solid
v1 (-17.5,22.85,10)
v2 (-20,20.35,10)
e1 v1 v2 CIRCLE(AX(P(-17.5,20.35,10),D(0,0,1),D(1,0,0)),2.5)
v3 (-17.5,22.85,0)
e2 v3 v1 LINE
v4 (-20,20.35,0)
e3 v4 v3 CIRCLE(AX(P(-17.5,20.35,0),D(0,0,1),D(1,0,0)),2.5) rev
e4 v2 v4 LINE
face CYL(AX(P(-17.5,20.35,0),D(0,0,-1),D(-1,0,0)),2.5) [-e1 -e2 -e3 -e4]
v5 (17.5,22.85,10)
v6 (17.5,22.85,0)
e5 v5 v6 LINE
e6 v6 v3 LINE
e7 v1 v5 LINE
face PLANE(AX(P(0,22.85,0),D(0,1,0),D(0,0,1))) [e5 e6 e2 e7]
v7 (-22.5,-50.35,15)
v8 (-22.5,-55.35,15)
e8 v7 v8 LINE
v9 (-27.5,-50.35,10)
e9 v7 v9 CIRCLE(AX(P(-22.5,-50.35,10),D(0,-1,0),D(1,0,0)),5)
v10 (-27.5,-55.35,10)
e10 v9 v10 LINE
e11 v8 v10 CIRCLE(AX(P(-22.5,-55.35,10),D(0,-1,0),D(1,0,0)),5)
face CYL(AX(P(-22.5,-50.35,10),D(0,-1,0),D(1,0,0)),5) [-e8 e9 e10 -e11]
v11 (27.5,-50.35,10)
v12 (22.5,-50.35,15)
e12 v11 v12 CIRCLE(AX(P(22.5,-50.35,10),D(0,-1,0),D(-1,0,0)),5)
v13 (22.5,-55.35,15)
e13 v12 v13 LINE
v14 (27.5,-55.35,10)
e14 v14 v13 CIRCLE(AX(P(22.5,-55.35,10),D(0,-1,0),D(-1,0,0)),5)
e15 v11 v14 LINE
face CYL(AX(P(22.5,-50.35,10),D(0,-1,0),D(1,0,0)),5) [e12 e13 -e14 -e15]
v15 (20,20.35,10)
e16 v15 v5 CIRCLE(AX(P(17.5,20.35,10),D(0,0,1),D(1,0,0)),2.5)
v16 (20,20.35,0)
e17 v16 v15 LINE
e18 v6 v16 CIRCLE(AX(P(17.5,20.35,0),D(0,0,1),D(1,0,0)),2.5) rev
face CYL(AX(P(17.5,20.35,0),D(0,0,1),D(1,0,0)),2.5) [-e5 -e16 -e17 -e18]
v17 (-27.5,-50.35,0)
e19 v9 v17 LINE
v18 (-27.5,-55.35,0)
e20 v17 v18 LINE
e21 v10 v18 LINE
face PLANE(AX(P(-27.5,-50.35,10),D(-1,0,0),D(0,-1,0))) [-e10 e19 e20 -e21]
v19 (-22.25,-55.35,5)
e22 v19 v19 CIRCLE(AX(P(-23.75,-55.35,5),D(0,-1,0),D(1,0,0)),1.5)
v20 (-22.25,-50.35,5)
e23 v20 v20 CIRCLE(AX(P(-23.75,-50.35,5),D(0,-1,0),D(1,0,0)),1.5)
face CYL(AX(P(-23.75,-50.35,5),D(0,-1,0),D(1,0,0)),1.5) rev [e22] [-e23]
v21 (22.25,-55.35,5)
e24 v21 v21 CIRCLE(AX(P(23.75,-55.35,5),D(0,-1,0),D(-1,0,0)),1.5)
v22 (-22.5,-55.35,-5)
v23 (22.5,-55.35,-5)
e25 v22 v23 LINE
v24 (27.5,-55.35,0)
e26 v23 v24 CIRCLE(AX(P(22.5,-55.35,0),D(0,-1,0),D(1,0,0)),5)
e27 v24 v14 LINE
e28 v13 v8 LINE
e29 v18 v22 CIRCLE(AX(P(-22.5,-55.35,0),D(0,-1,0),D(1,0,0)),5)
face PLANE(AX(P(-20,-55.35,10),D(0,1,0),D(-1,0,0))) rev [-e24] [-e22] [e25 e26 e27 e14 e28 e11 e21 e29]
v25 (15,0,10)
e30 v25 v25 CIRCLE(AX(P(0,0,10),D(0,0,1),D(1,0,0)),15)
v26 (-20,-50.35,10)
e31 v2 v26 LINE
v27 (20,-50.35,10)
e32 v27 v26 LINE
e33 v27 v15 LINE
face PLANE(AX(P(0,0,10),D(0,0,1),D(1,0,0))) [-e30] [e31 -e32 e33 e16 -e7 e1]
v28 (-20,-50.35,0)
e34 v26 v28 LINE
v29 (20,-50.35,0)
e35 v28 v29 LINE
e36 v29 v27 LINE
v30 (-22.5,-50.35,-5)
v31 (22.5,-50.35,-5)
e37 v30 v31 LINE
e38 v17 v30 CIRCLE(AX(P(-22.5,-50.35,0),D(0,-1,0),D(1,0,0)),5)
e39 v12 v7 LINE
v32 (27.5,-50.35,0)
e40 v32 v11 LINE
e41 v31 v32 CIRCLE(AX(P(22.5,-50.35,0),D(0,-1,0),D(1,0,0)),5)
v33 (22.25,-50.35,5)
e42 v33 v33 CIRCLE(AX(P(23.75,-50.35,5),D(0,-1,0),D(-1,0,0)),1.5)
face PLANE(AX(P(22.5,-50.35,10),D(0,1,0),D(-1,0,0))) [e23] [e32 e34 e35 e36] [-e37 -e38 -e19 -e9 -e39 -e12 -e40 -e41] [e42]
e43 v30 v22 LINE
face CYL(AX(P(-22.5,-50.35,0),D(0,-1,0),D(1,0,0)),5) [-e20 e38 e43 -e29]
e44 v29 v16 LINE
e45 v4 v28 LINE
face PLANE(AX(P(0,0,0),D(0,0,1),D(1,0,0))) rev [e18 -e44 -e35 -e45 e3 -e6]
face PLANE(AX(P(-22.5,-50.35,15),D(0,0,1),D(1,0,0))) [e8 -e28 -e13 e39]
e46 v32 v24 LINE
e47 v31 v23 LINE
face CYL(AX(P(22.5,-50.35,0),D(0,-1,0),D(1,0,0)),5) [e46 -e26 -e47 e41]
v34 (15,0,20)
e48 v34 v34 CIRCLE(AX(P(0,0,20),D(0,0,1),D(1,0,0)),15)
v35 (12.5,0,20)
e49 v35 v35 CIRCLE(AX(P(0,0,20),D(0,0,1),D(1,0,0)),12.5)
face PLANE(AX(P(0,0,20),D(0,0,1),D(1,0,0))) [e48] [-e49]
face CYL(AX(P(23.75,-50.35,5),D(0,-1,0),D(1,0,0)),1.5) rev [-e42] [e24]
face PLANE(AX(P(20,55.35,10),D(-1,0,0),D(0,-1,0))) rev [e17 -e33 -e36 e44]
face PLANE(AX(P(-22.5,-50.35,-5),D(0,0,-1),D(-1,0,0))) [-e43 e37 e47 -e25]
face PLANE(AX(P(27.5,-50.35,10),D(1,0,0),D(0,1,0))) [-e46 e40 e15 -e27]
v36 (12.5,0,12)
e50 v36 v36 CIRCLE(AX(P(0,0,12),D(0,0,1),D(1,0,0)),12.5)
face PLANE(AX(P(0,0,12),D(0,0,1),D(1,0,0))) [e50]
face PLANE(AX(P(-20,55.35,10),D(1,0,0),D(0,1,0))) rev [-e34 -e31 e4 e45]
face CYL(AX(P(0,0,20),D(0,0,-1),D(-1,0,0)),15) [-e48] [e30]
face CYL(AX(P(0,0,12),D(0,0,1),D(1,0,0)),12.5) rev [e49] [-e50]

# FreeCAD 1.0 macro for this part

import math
import FreeCAD as App
import Part
import Sketcher

V = App.Vector
Q = App.Units.Quantity


def edges_at(feature, points):
    """Names of the edges that pass closest to the given points."""
    edges = feature.Shape.Edges
    near = lambda p: min(range(len(edges)), key=lambda i: edges[i].distToShape(Part.Vertex(*p))[0])
    return sorted({f"Edge{near(p) + 1}" for p in points})


def add_polygon(sketch, points):
    """Adds a closed chain of lines whose ends are joined by coincident constraints."""
    first, n = sketch.GeometryCount, len(points)
    for a, b in zip(points, points[1:] + points[:1]):
        sketch.addGeometry(Part.LineSegment(App.Vector(*a, 0), App.Vector(*b, 0)), False)
    for i in range(n):
        sketch.addConstraint(Sketcher.Constraint("Coincident", first + i, 2, first + (i + 1) % n, 1))

doc = App.newDocument("Part")
body = doc.addObject("PartDesign::Body", "Body")

# Sketch on XY plane
sketch1 = body.newObject("Sketcher::SketchObject", "Sketch")
sketch1.AttachmentSupport = (doc.getObject("XY_Plane"), [""])
sketch1.MapMode = "FlatFace"
add_polygon(sketch1, [(-20, 55), (-20, -55), (20, -55), (20, 55)])  # lines 0-3
sketch1.addConstraint([
    Sketcher.Constraint("Vertical", 0),
    Sketcher.Constraint("Horizontal", 1),
    Sketcher.Constraint("Vertical", 2),
    Sketcher.Constraint("Horizontal", 3),
    Sketcher.Constraint("Symmetric", 0, 2, 2, 2, -1, 1),
    Sketcher.Constraint("DistanceX", 1, 1, 1, 2, Q("40 mm")),
    Sketcher.Constraint("DistanceY", 0, 2, 0, 1, Q("110.7 mm")),
])
pad1 = body.newObject("PartDesign::Pad", "Pad")
pad1.Profile = sketch1
pad1.Length = 10

# Sketch on XY plane
sketch2 = body.newObject("Sketcher::SketchObject", "Sketch001")
sketch2.AttachmentSupport = (doc.getObject("XY_Plane"), [""])
sketch2.MapMode = "FlatFace"
sketch2.AttachmentOffset = App.Placement(V(0, 0, 10), App.Rotation())
sketch2.addGeometry(Part.Circle(V(0, 0, 0), V(0, 0, 1), 15), False)
sketch2.addConstraint([
    Sketcher.Constraint("Coincident", 0, 3, -1, 1),
    Sketcher.Constraint("Diameter", 0, Q("30 mm")),
])
pad2 = body.newObject("PartDesign::Pad", "Pad001")
pad2.Profile = sketch2
pad2.Length = 10

# Sketch on XY plane
sketch3 = body.newObject("Sketcher::SketchObject", "Sketch002")
sketch3.AttachmentSupport = (doc.getObject("XY_Plane"), [""])
sketch3.MapMode = "FlatFace"
sketch3.AttachmentOffset = App.Placement(V(0, 0, 20), App.Rotation())
sketch3.addGeometry(Part.Circle(V(0, 0, 0), V(0, 0, 1), 12), False)
sketch3.addConstraint([
    Sketcher.Constraint("Coincident", 0, 3, -1, 1),
    Sketcher.Constraint("Diameter", 0, Q("25 mm")),
])
pocket1 = body.newObject("PartDesign::Pocket", "Pocket")
pocket1.Profile = sketch3
pocket1.Length = 8

# Sketch on XZ plane
sketch4 = body.newObject("Sketcher::SketchObject", "Sketch003")
sketch4.AttachmentSupport = (doc.getObject("XZ_Plane"), [""])
sketch4.MapMode = "FlatFace"
sketch4.AttachmentOffset = App.Placement(V(0, 0, -55.35), App.Rotation())
add_polygon(sketch4, [(-20, 0), (-20, 10), (20, 10), (20, 0)])  # lines 0-3
sketch4.addConstraint([
    Sketcher.Constraint("Vertical", 0),
    Sketcher.Constraint("Horizontal", 1),
    Sketcher.Constraint("Vertical", 2),
    Sketcher.Constraint("Horizontal", 3),
    Sketcher.Constraint("Symmetric", 2, 2, 3, 2, -1, 1),
    Sketcher.Constraint("DistanceX", 1, 1, 1, 2, Q("40 mm")),
    Sketcher.Constraint("DistanceY", 0, 1, 0, 2, Q("10 mm")),
])
pocket2 = body.newObject("PartDesign::Pocket", "Pocket001")
pocket2.Profile = sketch4
pocket2.Length = 32.5
pocket2.Reversed = True
doc.recompute()

fillet = body.newObject("PartDesign::Fillet", "Fillet")
fillet.Base = (pocket2, edges_at(pocket2, [(-20, 22.85, 5), (20, 22.85, 5)]))
fillet.Radius = 2.5

# Sketch on XZ plane
sketch5 = body.newObject("Sketcher::SketchObject", "Sketch004")
sketch5.AttachmentSupport = (doc.getObject("XZ_Plane"), [""])
sketch5.MapMode = "FlatFace"
sketch5.AttachmentOffset = App.Placement(V(0, 0, 55.35), App.Rotation())
sketch5.addGeometry(Part.LineSegment(V(22.5, 15, 0), V(-22.5, 15, 0)), False)  # 0
sketch5.addGeometry(Part.ArcOfCircle(Part.Circle(V(-22.5, 10, 0), V(0, 0, 1), 5), math.radians(90), math.radians(180)), False)  # 1
sketch5.addGeometry(Part.LineSegment(V(-27.5, 10, 0), V(-27.5, 0, 0)), False)  # 2
sketch5.addGeometry(Part.ArcOfCircle(Part.Circle(V(-22.5, 0, 0), V(0, 0, 1), 5), math.radians(180), math.radians(270)), False)  # 3
sketch5.addGeometry(Part.LineSegment(V(-22.5, -5, 0), V(22.5, -5, 0)), False)  # 4
sketch5.addGeometry(Part.ArcOfCircle(Part.Circle(V(22.5, 0, 0), V(0, 0, 1), 5), math.radians(-90), math.radians(0)), False)  # 5
sketch5.addGeometry(Part.LineSegment(V(27.5, 0, 0), V(27.5, 10, 0)), False)  # 6
sketch5.addGeometry(Part.ArcOfCircle(Part.Circle(V(22.5, 10, 0), V(0, 0, 1), 5), math.radians(0), math.radians(90)), False)  # 7
sketch5.addGeometry(Part.Circle(V(23.8, 5, 0), V(0, 0, 1), 1.5), False)  # 8
add_polygon(sketch5, [(-20, 0), (-20, 10), (20, 10), (20, 0)])  # lines 9-12
sketch5.addGeometry(Part.Circle(V(-23.8, 5, 0), V(0, 0, 1), 1.5), False)  # 13
sketch5.addConstraint([
    Sketcher.Constraint("Tangent", 0, 2, 1, 1),
    Sketcher.Constraint("Tangent", 1, 2, 2, 1),
    Sketcher.Constraint("Tangent", 2, 2, 3, 1),
    Sketcher.Constraint("Tangent", 3, 2, 4, 1),
    Sketcher.Constraint("Tangent", 4, 2, 5, 1),
    Sketcher.Constraint("Tangent", 5, 2, 6, 1),
    Sketcher.Constraint("Tangent", 6, 2, 7, 1),
    Sketcher.Constraint("Tangent", 7, 2, 0, 1),
    Sketcher.Constraint("Horizontal", 0),
    Sketcher.Constraint("Vertical", 2),
    Sketcher.Constraint("Horizontal", 4),
    Sketcher.Constraint("Vertical", 6),
    Sketcher.Constraint("Vertical", 9),
    Sketcher.Constraint("Horizontal", 10),
    Sketcher.Constraint("Vertical", 11),
    Sketcher.Constraint("Horizontal", 12),
    Sketcher.Constraint("Equal", 1, 3),
    Sketcher.Constraint("Equal", 3, 5),
    Sketcher.Constraint("Equal", 5, 7),
    Sketcher.Constraint("Equal", 8, 13),
    Sketcher.Constraint("Symmetric", 3, 3, 5, 3, -1, 1),
    Sketcher.Constraint("Symmetric", 11, 2, 12, 2, -1, 1),
    Sketcher.Constraint("Symmetric", 8, 3, 13, 3, -2),
    Sketcher.Constraint("Horizontal", 6, 2, 9, 2),
    Sketcher.Constraint("Diameter", 8, Q("3 mm")),
    Sketcher.Constraint("Radius", 1, Q("5 mm")),
    Sketcher.Constraint("DistanceX", 0, 2, 0, 1, Q("45 mm")),
    Sketcher.Constraint("DistanceX", 10, 1, 10, 2, Q("40 mm")),
    Sketcher.Constraint("DistanceY", 2, 2, 2, 1, Q("10 mm")),
    Sketcher.Constraint("DistanceY", -1, 1, 8, 3, Q("5 mm")),
    Sketcher.Constraint("DistanceX", 13, 3, 8, 3, Q("47.5 mm")),
])
pad3 = body.newObject("PartDesign::Pad", "Pad002")
pad3.Profile = sketch5
pad3.Length = 5
pad3.Reversed = True

doc.recompute()
